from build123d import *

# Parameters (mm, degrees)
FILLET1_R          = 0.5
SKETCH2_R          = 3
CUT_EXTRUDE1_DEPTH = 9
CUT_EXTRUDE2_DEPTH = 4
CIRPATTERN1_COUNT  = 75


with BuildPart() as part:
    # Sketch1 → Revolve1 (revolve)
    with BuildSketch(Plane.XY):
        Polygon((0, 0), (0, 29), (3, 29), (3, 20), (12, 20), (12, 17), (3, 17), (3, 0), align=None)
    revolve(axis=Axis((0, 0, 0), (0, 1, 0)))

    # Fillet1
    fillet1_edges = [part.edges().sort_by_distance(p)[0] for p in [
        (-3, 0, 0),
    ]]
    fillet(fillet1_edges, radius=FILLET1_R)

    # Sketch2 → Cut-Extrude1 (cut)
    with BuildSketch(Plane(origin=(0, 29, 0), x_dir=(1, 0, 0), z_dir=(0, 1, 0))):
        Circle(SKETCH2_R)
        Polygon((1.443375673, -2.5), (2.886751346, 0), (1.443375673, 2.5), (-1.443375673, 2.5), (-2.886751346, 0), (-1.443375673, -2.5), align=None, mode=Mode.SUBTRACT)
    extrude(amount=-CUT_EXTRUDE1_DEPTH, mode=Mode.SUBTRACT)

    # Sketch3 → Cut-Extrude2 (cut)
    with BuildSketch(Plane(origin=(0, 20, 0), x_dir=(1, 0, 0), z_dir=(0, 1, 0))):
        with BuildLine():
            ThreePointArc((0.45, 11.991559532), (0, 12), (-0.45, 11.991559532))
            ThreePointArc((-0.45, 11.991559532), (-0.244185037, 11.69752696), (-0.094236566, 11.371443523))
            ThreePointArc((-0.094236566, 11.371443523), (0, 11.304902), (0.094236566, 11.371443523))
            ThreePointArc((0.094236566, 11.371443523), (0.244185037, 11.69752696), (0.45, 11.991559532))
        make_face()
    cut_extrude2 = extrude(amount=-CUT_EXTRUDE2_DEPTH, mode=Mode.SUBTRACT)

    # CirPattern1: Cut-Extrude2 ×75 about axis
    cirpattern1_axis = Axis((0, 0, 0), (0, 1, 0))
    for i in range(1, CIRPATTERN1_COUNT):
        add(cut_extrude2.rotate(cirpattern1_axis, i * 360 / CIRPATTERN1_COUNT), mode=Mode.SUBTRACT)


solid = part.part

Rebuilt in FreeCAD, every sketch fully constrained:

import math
import FreeCAD as App
import Part
import Sketcher
Q = App.Units.Quantity


def edges_at(feature, points):
    """Names of the edges that pass closest to the given points."""
    edges = feature.Shape.Edges
    near = lambda p: min(range(len(edges)), key=lambda i: edges[i].distToShape(Part.Vertex(*p))[0])
    return sorted({f"Edge{near(p) + 1}" for p in points})


def add_polygon(sketch, points):
    """Adds a closed chain of lines whose ends are joined by coincident constraints."""
    first, n = sketch.GeometryCount, len(points)
    for a, b in zip(points, points[1:] + points[:1]):
        sketch.addGeometry(Part.LineSegment(App.Vector(*a, 0), App.Vector(*b, 0)), False)
    for i in range(n):
        sketch.addConstraint(Sketcher.Constraint("Coincident", first + i, 2, first + (i + 1) % n, 1))

doc = App.newDocument("Part")
body = doc.addObject("PartDesign::Body", "Body")

# Sketch on XY plane
sketch1 = body.newObject("Sketcher::SketchObject", "Sketch")
sketch1.AttachmentSupport = (doc.getObject("XY_Plane"), [""])
sketch1.MapMode = "FlatFace"
add_polygon(sketch1, [(0, 29), (0, 0), (3, 0), (3, 17), (12, 17), (12, 20), (3, 20), (3, 29)])  # lines 0-7
sketch1.addConstraint(Sketcher.Constraint("Vertical", 0))
sketch1.addConstraint(Sketcher.Constraint("Horizontal", 1))
sketch1.addConstraint(Sketcher.Constraint("Vertical", 2))
sketch1.addConstraint(Sketcher.Constraint("Horizontal", 3))
sketch1.addConstraint(Sketcher.Constraint("Vertical", 4))
sketch1.addConstraint(Sketcher.Constraint("Horizontal", 5))
sketch1.addConstraint(Sketcher.Constraint("Vertical", 6))
sketch1.addConstraint(Sketcher.Constraint("Horizontal", 7))
sketch1.addConstraint(Sketcher.Constraint("Coincident", 0, 2, -1, 1))
sketch1.addConstraint(Sketcher.Constraint("Vertical", 2, 2, 5, 2))
sketch1.addConstraint(Sketcher.Constraint("Equal", 7, 4))
sketch1.addConstraint(Sketcher.Constraint("Equal", 5, 6))
sketch1.addConstraint(Sketcher.Constraint("DistanceX", 1, 1, 1, 2, Q("3 mm")))
sketch1.addConstraint(Sketcher.Constraint("DistanceX", 3, 1, 3, 2, Q("9 mm")))
sketch1.addConstraint(Sketcher.Constraint("DistanceY", 0, 2, 0, 1, Q("29 mm")))
revolution = body.newObject("PartDesign::Revolution", "Revolution")
revolution.Profile = sketch1
revolution.ReferenceAxis = (sketch1, ["V_Axis"])
revolution.Angle = 360
doc.recompute()

fillet = body.newObject("PartDesign::Fillet", "Fillet")
fillet.Base = (revolution, edges_at(revolution, [(-3, 0, 0)]))
fillet.Radius = 0.5

# Sketch on XZ plane
sketch2 = body.newObject("Sketcher::SketchObject", "Sketch001")
sketch2.AttachmentSupport = (doc.getObject("XZ_Plane"), [""])
sketch2.MapMode = "FlatFace"
sketch2.AttachmentOffset = App.Placement(App.Vector(0, 0, -29), App.Rotation())
sketch2.addGeometry(Part.Circle(App.Vector(0, 0, 0), App.Vector(0, 0, 1), 3), False)  # 0
add_polygon(sketch2, [(2.9, 0), (1.4, 2.5), (-1.4, 2.5), (-2.9, 0), (-1.4, -2.5), (1.4, -2.5)])  # lines 1-6
sketch2.addConstraint(Sketcher.Constraint("Horizontal", 2))
sketch2.addConstraint(Sketcher.Constraint("Horizontal", 5))
sketch2.addConstraint(Sketcher.Constraint("Coincident", 0, 3, -1, 1))
sketch2.addConstraint(Sketcher.Constraint("Symmetric", 1, 2, 4, 2, -1, 1))
sketch2.addConstraint(Sketcher.Constraint("Symmetric", 3, 2, 6, 2, -1, 1))
sketch2.addConstraint(Sketcher.Constraint("PointOnObject", 3, 2, -1))
sketch2.addConstraint(Sketcher.Constraint("Parallel", 3, 6))
sketch2.addConstraint(Sketcher.Constraint("Vertical", 2, 2, 4, 2))
sketch2.addConstraint(Sketcher.Constraint("Diameter", 0, Q("6 mm")))
sketch2.addConstraint(Sketcher.Constraint("Angle", 1, Q("120 deg")))
sketch2.addConstraint(Sketcher.Constraint("DistanceY", 4, 2, 2, 2, Q("5 mm")))
sketch2.addConstraint(Sketcher.Constraint("DistanceX", 2, 2, 2, 1, Q("2.886751 mm")))
pocket1 = body.newObject("PartDesign::Pocket", "Pocket")
pocket1.Profile = sketch2
pocket1.Length = 9
pocket1.Reversed = True

# Sketch on XZ plane
sketch3 = body.newObject("Sketcher::SketchObject", "Sketch002")
sketch3.AttachmentSupport = (doc.getObject("XZ_Plane"), [""])
sketch3.MapMode = "FlatFace"
sketch3.AttachmentOffset = App.Placement(App.Vector(0, 0, -20), App.Rotation())
sketch3.addGeometry(Part.ArcOfCircle(Part.Circle(App.Vector(0, 0, 0), App.Vector(0, 0, 1), 12), math.radians(-92.15), math.radians(-87.85)), False)
sketch3.addGeometry(Part.ArcOfCircle(Part.Circle(App.Vector(-1.98, -10.7, 0), App.Vector(0, 0, 1), 2), math.radians(-40), math.radians(-20)), False)
sketch3.addGeometry(Part.ArcOfCircle(Part.Circle(App.Vector(0, -11.4, 0), App.Vector(0, 0, 1), 0.1), math.radians(20), math.radians(160)), False)
sketch3.addGeometry(Part.ArcOfCircle(Part.Circle(App.Vector(1.98, -10.7, 0), App.Vector(0, 0, 1), 2), math.radians(-160), math.radians(-140)), False)
sketch3.addConstraint(Sketcher.Constraint("Coincident", 0, 1, 1, 1))
sketch3.addConstraint(Sketcher.Constraint("Tangent", 1, 2, 2, 2))
sketch3.addConstraint(Sketcher.Constraint("Tangent", 2, 1, 3, 1))
sketch3.addConstraint(Sketcher.Constraint("Coincident", 3, 2, 0, 2))
sketch3.addConstraint(Sketcher.Constraint("Coincident", 0, 3, -1, 1))
sketch3.addConstraint(Sketcher.Constraint("Equal", 1, 3))
sketch3.addConstraint(Sketcher.Constraint("Symmetric", 1, 3, 3, 3, -2))
sketch3.addConstraint(Sketcher.Constraint("Radius", 0, Q("12.000001 mm")))
sketch3.addConstraint(Sketcher.Constraint("Radius", 1, Q("2 mm")))
sketch3.addConstraint(Sketcher.Constraint("Radius", 2, Q("0.1 mm")))
sketch3.addConstraint(Sketcher.Constraint("DistanceX", 0, 1, 3, 2, Q("0.9 mm")))
sketch3.addConstraint(Sketcher.Constraint("DistanceY", 2, 3, 1, 3, Q("0.702628 mm")))
pocket2 = body.newObject("PartDesign::Pocket", "Pocket001")
pocket2.Profile = sketch3
pocket2.Length = 4
pocket2.Reversed = True
doc.recompute()

polarpattern = body.newObject("PartDesign::PolarPattern", "PolarPattern")
polarpattern.Originals = [pocket2]
polarpattern.Axis = (doc.getObject("Y_Axis"), [""])
polarpattern.Angle = 360
polarpattern.Occurrences = 75
body.Tip = polarpattern

doc.recompute()
